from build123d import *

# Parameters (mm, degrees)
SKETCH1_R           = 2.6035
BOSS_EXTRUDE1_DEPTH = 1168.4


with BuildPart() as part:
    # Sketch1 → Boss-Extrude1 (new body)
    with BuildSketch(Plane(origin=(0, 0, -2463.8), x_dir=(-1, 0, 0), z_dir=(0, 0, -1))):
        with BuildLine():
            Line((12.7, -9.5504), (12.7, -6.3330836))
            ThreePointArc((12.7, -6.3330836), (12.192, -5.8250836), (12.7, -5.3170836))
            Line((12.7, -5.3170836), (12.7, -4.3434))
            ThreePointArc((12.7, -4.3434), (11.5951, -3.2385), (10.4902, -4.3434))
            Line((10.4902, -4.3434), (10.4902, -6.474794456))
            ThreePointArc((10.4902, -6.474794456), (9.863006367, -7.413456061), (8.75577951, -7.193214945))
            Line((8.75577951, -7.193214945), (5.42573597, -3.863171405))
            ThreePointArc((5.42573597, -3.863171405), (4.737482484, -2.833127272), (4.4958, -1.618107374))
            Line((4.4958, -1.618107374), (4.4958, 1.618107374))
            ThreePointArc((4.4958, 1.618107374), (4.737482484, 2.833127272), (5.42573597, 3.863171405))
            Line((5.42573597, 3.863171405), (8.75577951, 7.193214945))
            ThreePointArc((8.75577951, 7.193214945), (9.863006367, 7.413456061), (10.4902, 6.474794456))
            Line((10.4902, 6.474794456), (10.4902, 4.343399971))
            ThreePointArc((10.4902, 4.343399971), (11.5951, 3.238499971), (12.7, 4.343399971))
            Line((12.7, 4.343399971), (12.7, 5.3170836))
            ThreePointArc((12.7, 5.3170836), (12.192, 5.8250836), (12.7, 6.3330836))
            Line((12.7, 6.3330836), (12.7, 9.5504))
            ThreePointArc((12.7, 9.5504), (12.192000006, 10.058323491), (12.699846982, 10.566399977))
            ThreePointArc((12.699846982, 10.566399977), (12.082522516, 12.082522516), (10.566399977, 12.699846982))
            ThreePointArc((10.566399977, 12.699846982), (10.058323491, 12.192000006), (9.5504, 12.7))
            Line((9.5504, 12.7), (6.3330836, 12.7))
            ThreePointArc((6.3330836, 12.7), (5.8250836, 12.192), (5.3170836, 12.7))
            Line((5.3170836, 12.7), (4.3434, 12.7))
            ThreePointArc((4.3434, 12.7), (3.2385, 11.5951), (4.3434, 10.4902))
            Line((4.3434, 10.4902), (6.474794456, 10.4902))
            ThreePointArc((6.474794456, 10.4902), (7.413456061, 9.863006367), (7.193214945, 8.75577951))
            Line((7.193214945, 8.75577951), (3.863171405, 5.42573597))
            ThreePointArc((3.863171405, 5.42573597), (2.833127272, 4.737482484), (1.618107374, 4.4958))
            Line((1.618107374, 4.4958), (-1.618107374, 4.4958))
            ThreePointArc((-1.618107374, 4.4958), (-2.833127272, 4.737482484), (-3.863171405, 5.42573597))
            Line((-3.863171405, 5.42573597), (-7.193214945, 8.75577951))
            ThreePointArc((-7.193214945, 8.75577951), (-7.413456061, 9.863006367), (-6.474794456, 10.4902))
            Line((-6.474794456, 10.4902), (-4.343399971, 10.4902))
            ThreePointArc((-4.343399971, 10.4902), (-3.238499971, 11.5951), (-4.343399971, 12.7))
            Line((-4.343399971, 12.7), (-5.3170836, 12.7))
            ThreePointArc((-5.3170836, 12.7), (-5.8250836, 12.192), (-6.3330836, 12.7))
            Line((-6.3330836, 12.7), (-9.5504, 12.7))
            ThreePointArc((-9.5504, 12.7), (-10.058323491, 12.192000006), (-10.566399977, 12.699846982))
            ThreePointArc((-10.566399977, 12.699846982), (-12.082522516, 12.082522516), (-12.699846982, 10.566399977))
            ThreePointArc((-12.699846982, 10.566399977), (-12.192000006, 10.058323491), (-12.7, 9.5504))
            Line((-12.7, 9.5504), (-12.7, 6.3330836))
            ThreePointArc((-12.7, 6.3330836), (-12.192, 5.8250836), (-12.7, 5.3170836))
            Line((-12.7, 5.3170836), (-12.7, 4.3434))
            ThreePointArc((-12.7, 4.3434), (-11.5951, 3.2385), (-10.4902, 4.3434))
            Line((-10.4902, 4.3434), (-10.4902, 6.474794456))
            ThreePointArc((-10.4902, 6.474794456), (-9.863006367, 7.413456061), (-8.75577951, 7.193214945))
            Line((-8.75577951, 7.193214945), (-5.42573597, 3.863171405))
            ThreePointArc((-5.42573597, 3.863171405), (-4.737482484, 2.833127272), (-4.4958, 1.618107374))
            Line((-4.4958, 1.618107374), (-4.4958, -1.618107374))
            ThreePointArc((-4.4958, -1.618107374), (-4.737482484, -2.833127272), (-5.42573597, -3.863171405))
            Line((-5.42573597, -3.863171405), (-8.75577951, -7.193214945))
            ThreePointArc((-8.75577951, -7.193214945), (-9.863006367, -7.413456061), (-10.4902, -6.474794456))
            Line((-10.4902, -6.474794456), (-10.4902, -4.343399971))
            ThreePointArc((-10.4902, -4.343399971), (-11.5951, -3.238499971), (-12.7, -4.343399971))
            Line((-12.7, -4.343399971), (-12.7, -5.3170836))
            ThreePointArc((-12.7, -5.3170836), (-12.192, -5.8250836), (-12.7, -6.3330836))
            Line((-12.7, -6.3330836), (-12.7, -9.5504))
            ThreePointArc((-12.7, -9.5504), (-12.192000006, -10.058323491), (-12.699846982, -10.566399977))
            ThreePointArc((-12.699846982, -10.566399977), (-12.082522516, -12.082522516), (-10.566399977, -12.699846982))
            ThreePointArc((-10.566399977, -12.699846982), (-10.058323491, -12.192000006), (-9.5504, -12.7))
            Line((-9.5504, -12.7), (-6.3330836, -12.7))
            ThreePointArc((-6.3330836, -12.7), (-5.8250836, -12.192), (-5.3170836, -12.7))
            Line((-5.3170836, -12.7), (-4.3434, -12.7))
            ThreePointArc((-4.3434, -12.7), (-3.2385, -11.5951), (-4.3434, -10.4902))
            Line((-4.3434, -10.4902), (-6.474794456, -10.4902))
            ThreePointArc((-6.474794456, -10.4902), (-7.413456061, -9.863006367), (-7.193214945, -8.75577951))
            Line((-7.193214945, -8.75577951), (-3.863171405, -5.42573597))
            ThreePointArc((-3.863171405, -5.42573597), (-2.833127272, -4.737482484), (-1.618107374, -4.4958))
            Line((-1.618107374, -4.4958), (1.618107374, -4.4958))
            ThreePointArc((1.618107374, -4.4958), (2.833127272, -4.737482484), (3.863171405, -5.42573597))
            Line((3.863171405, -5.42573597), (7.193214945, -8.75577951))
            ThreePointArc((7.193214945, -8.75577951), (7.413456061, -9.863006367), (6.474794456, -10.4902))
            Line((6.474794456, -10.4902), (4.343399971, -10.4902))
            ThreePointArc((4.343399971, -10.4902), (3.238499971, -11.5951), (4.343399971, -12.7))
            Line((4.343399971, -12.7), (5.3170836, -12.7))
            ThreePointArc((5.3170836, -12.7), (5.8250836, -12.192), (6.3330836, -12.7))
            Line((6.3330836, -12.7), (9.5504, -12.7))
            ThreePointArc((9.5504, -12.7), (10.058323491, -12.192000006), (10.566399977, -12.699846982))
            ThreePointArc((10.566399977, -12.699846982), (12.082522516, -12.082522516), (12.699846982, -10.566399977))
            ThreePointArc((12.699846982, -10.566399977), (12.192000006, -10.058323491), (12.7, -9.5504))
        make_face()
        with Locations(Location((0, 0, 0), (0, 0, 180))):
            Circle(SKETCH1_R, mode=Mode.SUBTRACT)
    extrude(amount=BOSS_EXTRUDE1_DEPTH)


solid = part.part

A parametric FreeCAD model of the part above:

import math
import FreeCAD as App
import Part
import Sketcher

V = App.Vector
Q = App.Units.Quantity

doc = App.newDocument("Part")
body = doc.addObject("PartDesign::Body", "Body")

# Sketch on XY plane
sketch1 = doc.addObject("Sketcher::SketchObject", "Sketch")
body.addObject(sketch1)
sketch1.AttachmentSupport = (doc.XY_Plane, [""])
sketch1.MapMode = "FlatFace"
sketch1.AttachmentOffset = App.Placement(V(0, 0, -97 * 25.4), App.Rotation())
sketch1.addGeometry(Part.LineSegment(V(-12.7, -9.6, 0), V(-12.7, -6.3, 0)), False)
sketch1.addGeometry(Part.ArcOfCircle(Part.Circle(V(-12.7, -5.8, 0), V(0, 0, 1), 0.5), math.radians(-90), math.radians(90)), False)
sketch1.addGeometry(Part.LineSegment(V(-12.7, -5.3, 0), V(-12.7, -4.3, 0)), False)
sketch1.addGeometry(Part.ArcOfCircle(Part.Circle(V(-11.6, -4.3, 0), V(0, 0, 1), 1.1), math.radians(0), math.radians(180)), False)
sketch1.addGeometry(Part.LineSegment(V(-10.5, -4.3, 0), V(-10.5, -6.5, 0)), False)
sketch1.addGeometry(Part.ArcOfCircle(Part.Circle(V(-9.5, -6.5, 0), V(0, 0, 1), 1), math.radians(180), math.radians(315)), False)
sketch1.addGeometry(Part.LineSegment(V(-8.8, -7.2, 0), V(-5.4, -3.9, 0)), False)
sketch1.addGeometry(Part.ArcOfCircle(Part.Circle(V(-7.7, -1.6, 0), V(0, 0, 1), 3.2), math.radians(-45), math.radians(0)), False)
sketch1.addGeometry(Part.LineSegment(V(-4.5, -1.6, 0), V(-4.5, 1.6, 0)), False)
sketch1.addGeometry(Part.ArcOfCircle(Part.Circle(V(-7.7, 1.6, 0), V(0, 0, 1), 3.2), math.radians(0), math.radians(45)), False)
sketch1.addGeometry(Part.LineSegment(V(-5.4, 3.9, 0), V(-8.8, 7.2, 0)), False)
sketch1.addGeometry(Part.ArcOfCircle(Part.Circle(V(-9.5, 6.5, 0), V(0, 0, 1), 1), math.radians(45), math.radians(180)), False)
sketch1.addGeometry(Part.LineSegment(V(-10.5, 6.5, 0), V(-10.5, 4.3, 0)), False)
sketch1.addGeometry(Part.ArcOfCircle(Part.Circle(V(-11.6, 4.3, 0), V(0, 0, 1), 1.1), math.radians(180), math.radians(360)), False)
sketch1.addGeometry(Part.LineSegment(V(-12.7, 4.3, 0), V(-12.7, 5.3, 0)), False)
sketch1.addGeometry(Part.ArcOfCircle(Part.Circle(V(-12.7, 5.8, 0), V(0, 0, 1), 0.5), math.radians(-90), math.radians(90)), False)
sketch1.addGeometry(Part.LineSegment(V(-12.7, 6.3, 0), V(-12.7, 9.6, 0)), False)
sketch1.addGeometry(Part.ArcOfCircle(Part.Circle(V(-12.7, 10.1, 0), V(0, 0, 1), 0.5), math.radians(-90), math.radians(90)), False)
sketch1.addGeometry(Part.ArcOfCircle(Part.Circle(V(-10.6, 10.6, 0), V(0, 0, 1), 2.1), math.radians(89), math.radians(181)), False)
sketch1.addGeometry(Part.ArcOfCircle(Part.Circle(V(-10.1, 12.7, 0), V(0, 0, 1), 0.5), math.radians(-180), math.radians(0)), False)
sketch1.addGeometry(Part.LineSegment(V(-9.6, 12.7, 0), V(-6.3, 12.7, 0)), False)
sketch1.addGeometry(Part.ArcOfCircle(Part.Circle(V(-5.8, 12.7, 0), V(0, 0, 1), 0.5), math.radians(180), math.radians(360)), False)
sketch1.addGeometry(Part.LineSegment(V(-5.3, 12.7, 0), V(-4.3, 12.7, 0)), False)
sketch1.addGeometry(Part.ArcOfCircle(Part.Circle(V(-4.3, 11.6, 0), V(0, 0, 1), 1.1), math.radians(-90), math.radians(90)), False)
sketch1.addGeometry(Part.LineSegment(V(-4.3, 10.5, 0), V(-6.5, 10.5, 0)), False)
sketch1.addGeometry(Part.ArcOfCircle(Part.Circle(V(-6.5, 9.5, 0), V(0, 0, 1), 1), math.radians(90), math.radians(225)), False)
sketch1.addGeometry(Part.LineSegment(V(-7.2, 8.8, 0), V(-3.9, 5.4, 0)), False)
sketch1.addGeometry(Part.ArcOfCircle(Part.Circle(V(-1.6, 7.7, 0), V(0, 0, 1), 3.2), math.radians(-135), math.radians(-90)), False)
sketch1.addGeometry(Part.LineSegment(V(-1.6, 4.5, 0), V(1.6, 4.5, 0)), False)
sketch1.addGeometry(Part.ArcOfCircle(Part.Circle(V(1.6, 7.7, 0), V(0, 0, 1), 3.2), math.radians(-90), math.radians(-45)), False)
sketch1.addGeometry(Part.LineSegment(V(3.9, 5.4, 0), V(7.2, 8.8, 0)), False)
sketch1.addGeometry(Part.ArcOfCircle(Part.Circle(V(6.5, 9.5, 0), V(0, 0, 1), 1), math.radians(-45), math.radians(90)), False)
sketch1.addGeometry(Part.LineSegment(V(6.5, 10.5, 0), V(4.3, 10.5, 0)), False)
sketch1.addGeometry(Part.ArcOfCircle(Part.Circle(V(4.3, 11.6, 0), V(0, 0, 1), 1.1), math.radians(90), math.radians(270)), False)
sketch1.addGeometry(Part.LineSegment(V(4.3, 12.7, 0), V(5.3, 12.7, 0)), False)
sketch1.addGeometry(Part.ArcOfCircle(Part.Circle(V(5.8, 12.7, 0), V(0, 0, 1), 0.5), math.radians(180), math.radians(360)), False)
sketch1.addGeometry(Part.LineSegment(V(6.3, 12.7, 0), V(9.6, 12.7, 0)), False)
sketch1.addGeometry(Part.ArcOfCircle(Part.Circle(V(10.1, 12.7, 0), V(0, 0, 1), 0.5), math.radians(180), math.radians(360)), False)
sketch1.addGeometry(Part.ArcOfCircle(Part.Circle(V(10.6, 10.6, 0), V(0, 0, 1), 2.1), math.radians(-1), math.radians(91)), False)
sketch1.addGeometry(Part.ArcOfCircle(Part.Circle(V(12.7, 10.1, 0), V(0, 0, 1), 0.5), math.radians(90), math.radians(270)), False)
sketch1.addGeometry(Part.LineSegment(V(12.7, 9.6, 0), V(12.7, 6.3, 0)), False)
sketch1.addGeometry(Part.ArcOfCircle(Part.Circle(V(12.7, 5.8, 0), V(0, 0, 1), 0.5), math.radians(90), math.radians(270)), False)
sketch1.addGeometry(Part.LineSegment(V(12.7, 5.3, 0), V(12.7, 4.3, 0)), False)
sketch1.addGeometry(Part.ArcOfCircle(Part.Circle(V(11.6, 4.3, 0), V(0, 0, 1), 1.1), math.radians(180), math.radians(360)), False)
sketch1.addGeometry(Part.LineSegment(V(10.5, 4.3, 0), V(10.5, 6.5, 0)), False)
sketch1.addGeometry(Part.ArcOfCircle(Part.Circle(V(9.5, 6.5, 0), V(0, 0, 1), 1), math.radians(0), math.radians(135)), False)
sketch1.addGeometry(Part.LineSegment(V(8.8, 7.2, 0), V(5.4, 3.9, 0)), False)
sketch1.addGeometry(Part.ArcOfCircle(Part.Circle(V(7.7, 1.6, 0), V(0, 0, 1), 3.2), math.radians(135), math.radians(180)), False)
sketch1.addGeometry(Part.LineSegment(V(4.5, 1.6, 0), V(4.5, -1.6, 0)), False)
sketch1.addGeometry(Part.ArcOfCircle(Part.Circle(V(7.7, -1.6, 0), V(0, 0, 1), 3.2), math.radians(180), math.radians(225)), False)
sketch1.addGeometry(Part.LineSegment(V(5.4, -3.9, 0), V(8.8, -7.2, 0)), False)
sketch1.addGeometry(Part.ArcOfCircle(Part.Circle(V(9.5, -6.5, 0), V(0, 0, 1), 1), math.radians(-135), math.radians(0)), False)
sketch1.addGeometry(Part.LineSegment(V(10.5, -6.5, 0), V(10.5, -4.3, 0)), False)
sketch1.addGeometry(Part.ArcOfCircle(Part.Circle(V(11.6, -4.3, 0), V(0, 0, 1), 1.1), math.radians(0), math.radians(180)), False)
sketch1.addGeometry(Part.LineSegment(V(12.7, -4.3, 0), V(12.7, -5.3, 0)), False)
sketch1.addGeometry(Part.ArcOfCircle(Part.Circle(V(12.7, -5.8, 0), V(0, 0, 1), 0.5), math.radians(90), math.radians(270)), False)
sketch1.addGeometry(Part.LineSegment(V(12.7, -6.3, 0), V(12.7, -9.6, 0)), False)
sketch1.addGeometry(Part.ArcOfCircle(Part.Circle(V(12.7, -10.1, 0), V(0, 0, 1), 0.5), math.radians(90), math.radians(270)), False)
sketch1.addGeometry(Part.ArcOfCircle(Part.Circle(V(10.6, -10.6, 0), V(0, 0, 1), 2.1), math.radians(-91), math.radians(1)), False)
sketch1.addGeometry(Part.ArcOfCircle(Part.Circle(V(10.1, -12.7, 0), V(0, 0, 1), 0.5), math.radians(0), math.radians(180)), False)
sketch1.addGeometry(Part.LineSegment(V(9.6, -12.7, 0), V(6.3, -12.7, 0)), False)
sketch1.addGeometry(Part.ArcOfCircle(Part.Circle(V(5.8, -12.7, 0), V(0, 0, 1), 0.5), math.radians(0), math.radians(180)), False)
sketch1.addGeometry(Part.LineSegment(V(5.3, -12.7, 0), V(4.3, -12.7, 0)), False)
sketch1.addGeometry(Part.ArcOfCircle(Part.Circle(V(4.3, -11.6, 0), V(0, 0, 1), 1.1), math.radians(90), math.radians(270)), False)
sketch1.addGeometry(Part.LineSegment(V(4.3, -10.5, 0), V(6.5, -10.5, 0)), False)
sketch1.addGeometry(Part.ArcOfCircle(Part.Circle(V(6.5, -9.5, 0), V(0, 0, 1), 1), math.radians(-90), math.radians(45)), False)
sketch1.addGeometry(Part.LineSegment(V(7.2, -8.8, 0), V(3.9, -5.4, 0)), False)
sketch1.addGeometry(Part.ArcOfCircle(Part.Circle(V(1.6, -7.7, 0), V(0, 0, 1), 3.2), math.radians(45), math.radians(90)), False)
sketch1.addGeometry(Part.LineSegment(V(1.6, -4.5, 0), V(-1.6, -4.5, 0)), False)
sketch1.addGeometry(Part.ArcOfCircle(Part.Circle(V(-1.6, -7.7, 0), V(0, 0, 1), 3.2), math.radians(90), math.radians(135)), False)
sketch1.addGeometry(Part.LineSegment(V(-3.9, -5.4, 0), V(-7.2, -8.8, 0)), False)
sketch1.addGeometry(Part.ArcOfCircle(Part.Circle(V(-6.5, -9.5, 0), V(0, 0, 1), 1), math.radians(135), math.radians(270)), False)
sketch1.addGeometry(Part.LineSegment(V(-6.5, -10.5, 0), V(-4.3, -10.5, 0)), False)
sketch1.addGeometry(Part.ArcOfCircle(Part.Circle(V(-4.3, -11.6, 0), V(0, 0, 1), 1.1), math.radians(-90), math.radians(90)), False)
sketch1.addGeometry(Part.LineSegment(V(-4.3, -12.7, 0), V(-5.3, -12.7, 0)), False)
sketch1.addGeometry(Part.ArcOfCircle(Part.Circle(V(-5.8, -12.7, 0), V(0, 0, 1), 0.5), math.radians(0), math.radians(180)), False)
sketch1.addGeometry(Part.LineSegment(V(-6.3, -12.7, 0), V(-9.6, -12.7, 0)), False)
sketch1.addGeometry(Part.ArcOfCircle(Part.Circle(V(-10.1, -12.7, 0), V(0, 0, 1), 0.5), math.radians(0), math.radians(180)), False)
sketch1.addGeometry(Part.ArcOfCircle(Part.Circle(V(-10.6, -10.6, 0), V(0, 0, 1), 2.1), math.radians(179), math.radians(271)), False)
sketch1.addGeometry(Part.ArcOfCircle(Part.Circle(V(-12.7, -10.1, 0), V(0, 0, 1), 0.5), math.radians(-90), math.radians(90)), False)
sketch1.addGeometry(Part.Circle(V(0, 0, 0), V(0, 0, 1), 2.6), False)
sketch1.addConstraint(Sketcher.Constraint("Coincident", 0, 2, 1, 1))
sketch1.addConstraint(Sketcher.Constraint("Coincident", 1, 2, 2, 1))
sketch1.addConstraint(Sketcher.Constraint("Tangent", 2, 2, 3, 2))
sketch1.addConstraint(Sketcher.Constraint("Tangent", 3, 1, 4, 1))
sketch1.addConstraint(Sketcher.Constraint("Tangent", 4, 2, 5, 1))
sketch1.addConstraint(Sketcher.Constraint("Tangent", 5, 2, 6, 1))
sketch1.addConstraint(Sketcher.Constraint("Tangent", 6, 2, 7, 1))
sketch1.addConstraint(Sketcher.Constraint("Tangent", 7, 2, 8, 1))
sketch1.addConstraint(Sketcher.Constraint("Tangent", 8, 2, 9, 1))
sketch1.addConstraint(Sketcher.Constraint("Tangent", 9, 2, 10, 1))
sketch1.addConstraint(Sketcher.Constraint("Tangent", 10, 2, 11, 1))
sketch1.addConstraint(Sketcher.Constraint("Tangent", 11, 2, 12, 1))
sketch1.addConstraint(Sketcher.Constraint("Tangent", 12, 2, 13, 2))
sketch1.addConstraint(Sketcher.Constraint("Tangent", 13, 1, 14, 1))
sketch1.addConstraint(Sketcher.Constraint("Coincident", 14, 2, 15, 1))
sketch1.addConstraint(Sketcher.Constraint("Coincident", 15, 2, 16, 1))
sketch1.addConstraint(Sketcher.Constraint("Coincident", 16, 2, 17, 1))
sketch1.addConstraint(Sketcher.Constraint("Coincident", 17, 2, 18, 2))
sketch1.addConstraint(Sketcher.Constraint("Coincident", 18, 1, 19, 1))
sketch1.addConstraint(Sketcher.Constraint("Coincident", 19, 2, 20, 1))
sketch1.addConstraint(Sketcher.Constraint("Coincident", 20, 2, 21, 1))
sketch1.addConstraint(Sketcher.Constraint("Coincident", 21, 2, 22, 1))
sketch1.addConstraint(Sketcher.Constraint("Tangent", 22, 2, 23, 2))
sketch1.addConstraint(Sketcher.Constraint("Tangent", 23, 1, 24, 1))
sketch1.addConstraint(Sketcher.Constraint("Tangent", 24, 2, 25, 1))
sketch1.addConstraint(Sketcher.Constraint("Tangent", 25, 2, 26, 1))
sketch1.addConstraint(Sketcher.Constraint("Tangent", 26, 2, 27, 1))
sketch1.addConstraint(Sketcher.Constraint("Tangent", 27, 2, 28, 1))
sketch1.addConstraint(Sketcher.Constraint("Tangent", 28, 2, 29, 1))
sketch1.addConstraint(Sketcher.Constraint("Tangent", 29, 2, 30, 1))
sketch1.addConstraint(Sketcher.Constraint("Tangent", 30, 2, 31, 1))
sketch1.addConstraint(Sketcher.Constraint("Tangent", 31, 2, 32, 1))
sketch1.addConstraint(Sketcher.Constraint("Tangent", 32, 2, 33, 2))
sketch1.addConstraint(Sketcher.Constraint("Tangent", 33, 1, 34, 1))
sketch1.addConstraint(Sketcher.Constraint("Coincident", 34, 2, 35, 1))
sketch1.addConstraint(Sketcher.Constraint("Coincident", 35, 2, 36, 1))
sketch1.addConstraint(Sketcher.Constraint("Coincident", 36, 2, 37, 1))
sketch1.addConstraint(Sketcher.Constraint("Coincident", 37, 2, 38, 2))
sketch1.addConstraint(Sketcher.Constraint("Coincident", 38, 1, 39, 1))
sketch1.addConstraint(Sketcher.Constraint("Coincident", 39, 2, 40, 1))
sketch1.addConstraint(Sketcher.Constraint("Coincident", 40, 2, 41, 1))
sketch1.addConstraint(Sketcher.Constraint("Coincident", 41, 2, 42, 1))
sketch1.addConstraint(Sketcher.Constraint("Tangent", 42, 2, 43, 2))
sketch1.addConstraint(Sketcher.Constraint("Tangent", 43, 1, 44, 1))
sketch1.addConstraint(Sketcher.Constraint("Tangent", 44, 2, 45, 1))
sketch1.addConstraint(Sketcher.Constraint("Tangent", 45, 2, 46, 1))
sketch1.addConstraint(Sketcher.Constraint("Tangent", 46, 2, 47, 1))
sketch1.addConstraint(Sketcher.Constraint("Tangent", 47, 2, 48, 1))
sketch1.addConstraint(Sketcher.Constraint("Tangent", 48, 2, 49, 1))
sketch1.addConstraint(Sketcher.Constraint("Tangent", 49, 2, 50, 1))
sketch1.addConstraint(Sketcher.Constraint("Tangent", 50, 2, 51, 1))
sketch1.addConstraint(Sketcher.Constraint("Tangent", 51, 2, 52, 1))
sketch1.addConstraint(Sketcher.Constraint("Tangent", 52, 2, 53, 2))
sketch1.addConstraint(Sketcher.Constraint("Tangent", 53, 1, 54, 1))
sketch1.addConstraint(Sketcher.Constraint("Coincident", 54, 2, 55, 1))
sketch1.addConstraint(Sketcher.Constraint("Coincident", 55, 2, 56, 1))
sketch1.addConstraint(Sketcher.Constraint("Coincident", 56, 2, 57, 1))
sketch1.addConstraint(Sketcher.Constraint("Coincident", 57, 2, 58, 2))
sketch1.addConstraint(Sketcher.Constraint("Coincident", 58, 1, 59, 1))
sketch1.addConstraint(Sketcher.Constraint("Coincident", 59, 2, 60, 1))
sketch1.addConstraint(Sketcher.Constraint("Coincident", 60, 2, 61, 1))
sketch1.addConstraint(Sketcher.Constraint("Coincident", 61, 2, 62, 1))
sketch1.addConstraint(Sketcher.Constraint("Tangent", 62, 2, 63, 2))
sketch1.addConstraint(Sketcher.Constraint("Tangent", 63, 1, 64, 1))
sketch1.addConstraint(Sketcher.Constraint("Tangent", 64, 2, 65, 1))
sketch1.addConstraint(Sketcher.Constraint("Tangent", 65, 2, 66, 1))
sketch1.addConstraint(Sketcher.Constraint("Tangent", 66, 2, 67, 1))
sketch1.addConstraint(Sketcher.Constraint("Tangent", 67, 2, 68, 1))
sketch1.addConstraint(Sketcher.Constraint("Tangent", 68, 2, 69, 1))
sketch1.addConstraint(Sketcher.Constraint("Tangent", 69, 2, 70, 1))
sketch1.addConstraint(Sketcher.Constraint("Tangent", 70, 2, 71, 1))
sketch1.addConstraint(Sketcher.Constraint("Tangent", 71, 2, 72, 1))
sketch1.addConstraint(Sketcher.Constraint("Tangent", 72, 2, 73, 2))
sketch1.addConstraint(Sketcher.Constraint("Tangent", 73, 1, 74, 1))
sketch1.addConstraint(Sketcher.Constraint("Coincident", 74, 2, 75, 1))
sketch1.addConstraint(Sketcher.Constraint("Coincident", 75, 2, 76, 1))
sketch1.addConstraint(Sketcher.Constraint("Coincident", 76, 2, 77, 1))
sketch1.addConstraint(Sketcher.Constraint("Coincident", 77, 2, 78, 2))
sketch1.addConstraint(Sketcher.Constraint("Coincident", 78, 1, 79, 1))
sketch1.addConstraint(Sketcher.Constraint("Coincident", 79, 2, 0, 1))
sketch1.addConstraint(Sketcher.Constraint("Vertical", 0))
sketch1.addConstraint(Sketcher.Constraint("Vertical", 2))
sketch1.addConstraint(Sketcher.Constraint("Vertical", 4))
sketch1.addConstraint(Sketcher.Constraint("Vertical", 8))
sketch1.addConstraint(Sketcher.Constraint("Vertical", 12))
sketch1.addConstraint(Sketcher.Constraint("Vertical", 14))
sketch1.addConstraint(Sketcher.Constraint("Vertical", 16))
sketch1.addConstraint(Sketcher.Constraint("Horizontal", 20))
sketch1.addConstraint(Sketcher.Constraint("Horizontal", 22))
sketch1.addConstraint(Sketcher.Constraint("Horizontal", 24))
sketch1.addConstraint(Sketcher.Constraint("Horizontal", 28))
sketch1.addConstraint(Sketcher.Constraint("Horizontal", 32))
sketch1.addConstraint(Sketcher.Constraint("Horizontal", 34))
sketch1.addConstraint(Sketcher.Constraint("Horizontal", 36))
sketch1.addConstraint(Sketcher.Constraint("Vertical", 40))
sketch1.addConstraint(Sketcher.Constraint("Vertical", 42))
sketch1.addConstraint(Sketcher.Constraint("Vertical", 44))
sketch1.addConstraint(Sketcher.Constraint("Vertical", 48))
sketch1.addConstraint(Sketcher.Constraint("Vertical", 52))
sketch1.addConstraint(Sketcher.Constraint("Vertical", 54))
sketch1.addConstraint(Sketcher.Constraint("Vertical", 56))
sketch1.addConstraint(Sketcher.Constraint("Horizontal", 60))
sketch1.addConstraint(Sketcher.Constraint("Horizontal", 62))
sketch1.addConstraint(Sketcher.Constraint("Horizontal", 64))
sketch1.addConstraint(Sketcher.Constraint("Horizontal", 68))
sketch1.addConstraint(Sketcher.Constraint("Horizontal", 72))
sketch1.addConstraint(Sketcher.Constraint("Horizontal", 74))
sketch1.addConstraint(Sketcher.Constraint("Horizontal", 76))
sketch1.addConstraint(Sketcher.Constraint("Coincident", 80, 3, -1, 1))
sketch1.addConstraint(Sketcher.Constraint("Equal", 7, 9))
sketch1.addConstraint(Sketcher.Constraint("Equal", 5, 11))
sketch1.addConstraint(Sketcher.Constraint("Equal", 3, 13))
sketch1.addConstraint(Sketcher.Constraint("Equal", 1, 15))
sketch1.addConstraint(Sketcher.Constraint("Equal", 15, 17))
sketch1.addConstraint(Sketcher.Constraint("Equal", 17, 19))
sketch1.addConstraint(Sketcher.Constraint("Equal", 19, 21))
sketch1.addConstraint(Sketcher.Constraint("Equal", 13, 23))
sketch1.addConstraint(Sketcher.Constraint("Equal", 11, 25))
sketch1.addConstraint(Sketcher.Constraint("Equal", 9, 27))
sketch1.addConstraint(Sketcher.Constraint("Equal", 27, 29))
sketch1.addConstraint(Sketcher.Constraint("Equal", 25, 31))
sketch1.addConstraint(Sketcher.Constraint("Equal", 23, 33))
sketch1.addConstraint(Sketcher.Constraint("Equal", 21, 35))
sketch1.addConstraint(Sketcher.Constraint("Equal", 35, 37))
sketch1.addConstraint(Sketcher.Constraint("Equal", 18, 38))
sketch1.addConstraint(Sketcher.Constraint("Equal", 37, 39))
sketch1.addConstraint(Sketcher.Constraint("Equal", 39, 41))
sketch1.addConstraint(Sketcher.Constraint("Equal", 33, 43))
sketch1.addConstraint(Sketcher.Constraint("Equal", 31, 45))
sketch1.addConstraint(Sketcher.Constraint("Equal", 29, 47))
sketch1.addConstraint(Sketcher.Constraint("Equal", 47, 49))
sketch1.addConstraint(Sketcher.Constraint("Equal", 45, 51))
sketch1.addConstraint(Sketcher.Constraint("Equal", 43, 53))
sketch1.addConstraint(Sketcher.Constraint("Equal", 41, 55))
sketch1.addConstraint(Sketcher.Constraint("Equal", 55, 57))
sketch1.addConstraint(Sketcher.Constraint("Equal", 38, 58))
sketch1.addConstraint(Sketcher.Constraint("Equal", 57, 59))
sketch1.addConstraint(Sketcher.Constraint("Equal", 59, 61))
sketch1.addConstraint(Sketcher.Constraint("Equal", 53, 63))
sketch1.addConstraint(Sketcher.Constraint("Equal", 51, 65))
sketch1.addConstraint(Sketcher.Constraint("Equal", 49, 67))
sketch1.addConstraint(Sketcher.Constraint("Equal", 67, 69))
sketch1.addConstraint(Sketcher.Constraint("Equal", 65, 71))
sketch1.addConstraint(Sketcher.Constraint("Equal", 63, 73))
sketch1.addConstraint(Sketcher.Constraint("Equal", 61, 75))
sketch1.addConstraint(Sketcher.Constraint("Equal", 75, 77))
sketch1.addConstraint(Sketcher.Constraint("Equal", 58, 78))
sketch1.addConstraint(Sketcher.Constraint("Equal", 77, 79))
sketch1.addConstraint(Sketcher.Constraint("Symmetric", 1, 3, 41, 3, -1, 1))
sketch1.addConstraint(Sketcher.Constraint("Symmetric", 3, 3, 43, 3, -1, 1))
sketch1.addConstraint(Sketcher.Constraint("Symmetric", 7, 3, 47, 3, -1, 1))
sketch1.addConstraint(Sketcher.Constraint("Symmetric", 11, 3, 51, 3, -1, 1))
sketch1.addConstraint(Sketcher.Constraint("Symmetric", 15, 3, 55, 3, -1, 1))
sketch1.addConstraint(Sketcher.Constraint("Symmetric", 17, 3, 57, 3, -1, 1))
sketch1.addConstraint(Sketcher.Constraint("Symmetric", 18, 3, 58, 3, -1, 1))
sketch1.addConstraint(Sketcher.Constraint("Symmetric", 19, 3, 59, 3, -1, 1))
sketch1.addConstraint(Sketcher.Constraint("Symmetric", 21, 3, 61, 3, -1, 1))
sketch1.addConstraint(Sketcher.Constraint("Symmetric", 23, 3, 63, 3, -1, 1))
sketch1.addConstraint(Sketcher.Constraint("Symmetric", 27, 3, 67, 3, -1, 1))
sketch1.addConstraint(Sketcher.Constraint("Symmetric", 31, 3, 71, 3, -1, 1))
sketch1.addConstraint(Sketcher.Constraint("Symmetric", 35, 3, 75, 3, -1, 1))
sketch1.addConstraint(Sketcher.Constraint("Symmetric", 37, 3, 77, 3, -1, 1))
sketch1.addConstraint(Sketcher.Constraint("Symmetric", 38, 3, 78, 3, -1, 1))
sketch1.addConstraint(Sketcher.Constraint("Symmetric", 39, 3, 79, 3, -1, 1))
sketch1.addConstraint(Sketcher.Constraint("Symmetric", 25, 3, 31, 3, -2))
sketch1.addConstraint(Sketcher.Constraint("Symmetric", 21, 3, 35, 3, -2))
sketch1.addConstraint(Sketcher.Constraint("Symmetric", 19, 3, 37, 3, -2))
sketch1.addConstraint(Sketcher.Constraint("Symmetric", 18, 3, 38, 3, -2))
sketch1.addConstraint(Sketcher.Constraint("Symmetric", 17, 3, 39, 3, -2))
sketch1.addConstraint(Sketcher.Constraint("Symmetric", 15, 3, 41, 3, -2))
sketch1.addConstraint(Sketcher.Constraint("Symmetric", 13, 3, 43, 3, -2))
sketch1.addConstraint(Sketcher.Constraint("Symmetric", 10, 2, 45, 2, -2))
sketch1.addConstraint(Sketcher.Constraint("Symmetric", 6, 2, 49, 2, -2))
sketch1.addConstraint(Sketcher.Constraint("Symmetric", 66, 2, 69, 2, -2))
sketch1.addConstraint(Sketcher.Constraint("Perpendicular", 6, 10))
sketch1.addConstraint(Sketcher.Constraint("Parallel", 10, 26))
sketch1.addConstraint(Sketcher.Constraint("Perpendicular", 26, 30))
sketch1.addConstraint(Sketcher.Constraint("Horizontal", 19, 3, 21, 3))
sketch1.addConstraint(Sketcher.Constraint("Horizontal", 3, 3, 53, 3))
sketch1.addConstraint(Sketcher.Constraint("Horizontal", 37, 3, 19, 2))
sketch1.addConstraint(Sketcher.Constraint("Horizontal", 20, 2, 21, 2))
sketch1.addConstraint(Sketcher.Constraint("Horizontal", 34, 2, 35, 2))
sketch1.addConstraint(Sketcher.Constraint("Horizontal", 77, 3, 59, 2))
sketch1.addConstraint(Sketcher.Constraint("Horizontal", 74, 2, 75, 2))
sketch1.addConstraint(Sketcher.Constraint("Vertical", 15, 3, 17, 3))
sketch1.addConstraint(Sketcher.Constraint("Vertical", 33, 3, 63, 3))
sketch1.addConstraint(Sketcher.Constraint("Vertical", 23, 3, 73, 3))
sketch1.addConstraint(Sketcher.Constraint("Vertical", 79, 3, 0, 2))
sketch1.addConstraint(Sketcher.Constraint("Vertical", 0, 2, 1, 2))
sketch1.addConstraint(Sketcher.Constraint("Vertical", 14, 2, 15, 2))
sketch1.addConstraint(Sketcher.Constraint("Vertical", 57, 3, 39, 2))
sketch1.addConstraint(Sketcher.Constraint("Vertical", 54, 2, 55, 2))
sketch1.addConstraint(Sketcher.Constraint("Equal", 76, 0))
sketch1.addConstraint(Sketcher.Constraint("Equal", 74, 2))
sketch1.addConstraint(Sketcher.Constraint("Equal", 72, 4))
sketch1.addConstraint(Sketcher.Constraint("Equal", 68, 8))
sketch1.addConstraint(Sketcher.Constraint("Equal", 10, 26))
sketch1.addConstraint(Sketcher.Constraint("Radius", 1, Q("0.02 in")))
sketch1.addConstraint(Sketcher.Constraint("Radius", 5, Q("0.04 in")))
sketch1.addConstraint(Sketcher.Constraint("Diameter", 80, Q("0.205 in")))
sketch1.addConstraint(Sketcher.Constraint("Radius", 7, Q("0.125 in")))
sketch1.addConstraint(Sketcher.Constraint("Radius", 18, Q("0.083 in")))
sketch1.addConstraint(Sketcher.Constraint("DistanceX", 1, 3, -1, 1, Q("0.5 in")))
sketch1.addConstraint(Sketcher.Constraint("DistanceY", -1, 1, 19, 3, Q("0.5 in")))
sketch1.addConstraint(Sketcher.Constraint("Radius", 3, Q("0.0435 in")))
sketch1.addConstraint(Sketcher.Constraint("DistanceY", 3, 3, -1, 1, Q("0.171 in")))
sketch1.addConstraint(Sketcher.Constraint("DistanceX", 7, 3, -1, 1, Q("0.302 in")))
sketch1.addConstraint(Sketcher.Constraint("DistanceY", -1, 1, 17, 3, Q("0.396 in")))
sketch1.addConstraint(Sketcher.Constraint("DistanceX", 18, 3, -1, 1, Q("0.417 in")))
sketch1.addConstraint(Sketcher.Constraint("DistanceY", -1, 1, 18, 3, Q("0.417 in")))
sketch1.addConstraint(Sketcher.Constraint("DistanceX", 20, 1, 20, 2, Q("3.217316 mm")))
sketch1.addConstraint(Sketcher.Constraint("DistanceX", 24, 2, 24, 1, Q("2.131394 mm")))
pad1 = doc.addObject("PartDesign::Pad", "Pad")
body.addObject(pad1)
pad1.Profile = sketch1
pad1.Length = Q("46 in")
pad1.Reversed = True

doc.recompute()
